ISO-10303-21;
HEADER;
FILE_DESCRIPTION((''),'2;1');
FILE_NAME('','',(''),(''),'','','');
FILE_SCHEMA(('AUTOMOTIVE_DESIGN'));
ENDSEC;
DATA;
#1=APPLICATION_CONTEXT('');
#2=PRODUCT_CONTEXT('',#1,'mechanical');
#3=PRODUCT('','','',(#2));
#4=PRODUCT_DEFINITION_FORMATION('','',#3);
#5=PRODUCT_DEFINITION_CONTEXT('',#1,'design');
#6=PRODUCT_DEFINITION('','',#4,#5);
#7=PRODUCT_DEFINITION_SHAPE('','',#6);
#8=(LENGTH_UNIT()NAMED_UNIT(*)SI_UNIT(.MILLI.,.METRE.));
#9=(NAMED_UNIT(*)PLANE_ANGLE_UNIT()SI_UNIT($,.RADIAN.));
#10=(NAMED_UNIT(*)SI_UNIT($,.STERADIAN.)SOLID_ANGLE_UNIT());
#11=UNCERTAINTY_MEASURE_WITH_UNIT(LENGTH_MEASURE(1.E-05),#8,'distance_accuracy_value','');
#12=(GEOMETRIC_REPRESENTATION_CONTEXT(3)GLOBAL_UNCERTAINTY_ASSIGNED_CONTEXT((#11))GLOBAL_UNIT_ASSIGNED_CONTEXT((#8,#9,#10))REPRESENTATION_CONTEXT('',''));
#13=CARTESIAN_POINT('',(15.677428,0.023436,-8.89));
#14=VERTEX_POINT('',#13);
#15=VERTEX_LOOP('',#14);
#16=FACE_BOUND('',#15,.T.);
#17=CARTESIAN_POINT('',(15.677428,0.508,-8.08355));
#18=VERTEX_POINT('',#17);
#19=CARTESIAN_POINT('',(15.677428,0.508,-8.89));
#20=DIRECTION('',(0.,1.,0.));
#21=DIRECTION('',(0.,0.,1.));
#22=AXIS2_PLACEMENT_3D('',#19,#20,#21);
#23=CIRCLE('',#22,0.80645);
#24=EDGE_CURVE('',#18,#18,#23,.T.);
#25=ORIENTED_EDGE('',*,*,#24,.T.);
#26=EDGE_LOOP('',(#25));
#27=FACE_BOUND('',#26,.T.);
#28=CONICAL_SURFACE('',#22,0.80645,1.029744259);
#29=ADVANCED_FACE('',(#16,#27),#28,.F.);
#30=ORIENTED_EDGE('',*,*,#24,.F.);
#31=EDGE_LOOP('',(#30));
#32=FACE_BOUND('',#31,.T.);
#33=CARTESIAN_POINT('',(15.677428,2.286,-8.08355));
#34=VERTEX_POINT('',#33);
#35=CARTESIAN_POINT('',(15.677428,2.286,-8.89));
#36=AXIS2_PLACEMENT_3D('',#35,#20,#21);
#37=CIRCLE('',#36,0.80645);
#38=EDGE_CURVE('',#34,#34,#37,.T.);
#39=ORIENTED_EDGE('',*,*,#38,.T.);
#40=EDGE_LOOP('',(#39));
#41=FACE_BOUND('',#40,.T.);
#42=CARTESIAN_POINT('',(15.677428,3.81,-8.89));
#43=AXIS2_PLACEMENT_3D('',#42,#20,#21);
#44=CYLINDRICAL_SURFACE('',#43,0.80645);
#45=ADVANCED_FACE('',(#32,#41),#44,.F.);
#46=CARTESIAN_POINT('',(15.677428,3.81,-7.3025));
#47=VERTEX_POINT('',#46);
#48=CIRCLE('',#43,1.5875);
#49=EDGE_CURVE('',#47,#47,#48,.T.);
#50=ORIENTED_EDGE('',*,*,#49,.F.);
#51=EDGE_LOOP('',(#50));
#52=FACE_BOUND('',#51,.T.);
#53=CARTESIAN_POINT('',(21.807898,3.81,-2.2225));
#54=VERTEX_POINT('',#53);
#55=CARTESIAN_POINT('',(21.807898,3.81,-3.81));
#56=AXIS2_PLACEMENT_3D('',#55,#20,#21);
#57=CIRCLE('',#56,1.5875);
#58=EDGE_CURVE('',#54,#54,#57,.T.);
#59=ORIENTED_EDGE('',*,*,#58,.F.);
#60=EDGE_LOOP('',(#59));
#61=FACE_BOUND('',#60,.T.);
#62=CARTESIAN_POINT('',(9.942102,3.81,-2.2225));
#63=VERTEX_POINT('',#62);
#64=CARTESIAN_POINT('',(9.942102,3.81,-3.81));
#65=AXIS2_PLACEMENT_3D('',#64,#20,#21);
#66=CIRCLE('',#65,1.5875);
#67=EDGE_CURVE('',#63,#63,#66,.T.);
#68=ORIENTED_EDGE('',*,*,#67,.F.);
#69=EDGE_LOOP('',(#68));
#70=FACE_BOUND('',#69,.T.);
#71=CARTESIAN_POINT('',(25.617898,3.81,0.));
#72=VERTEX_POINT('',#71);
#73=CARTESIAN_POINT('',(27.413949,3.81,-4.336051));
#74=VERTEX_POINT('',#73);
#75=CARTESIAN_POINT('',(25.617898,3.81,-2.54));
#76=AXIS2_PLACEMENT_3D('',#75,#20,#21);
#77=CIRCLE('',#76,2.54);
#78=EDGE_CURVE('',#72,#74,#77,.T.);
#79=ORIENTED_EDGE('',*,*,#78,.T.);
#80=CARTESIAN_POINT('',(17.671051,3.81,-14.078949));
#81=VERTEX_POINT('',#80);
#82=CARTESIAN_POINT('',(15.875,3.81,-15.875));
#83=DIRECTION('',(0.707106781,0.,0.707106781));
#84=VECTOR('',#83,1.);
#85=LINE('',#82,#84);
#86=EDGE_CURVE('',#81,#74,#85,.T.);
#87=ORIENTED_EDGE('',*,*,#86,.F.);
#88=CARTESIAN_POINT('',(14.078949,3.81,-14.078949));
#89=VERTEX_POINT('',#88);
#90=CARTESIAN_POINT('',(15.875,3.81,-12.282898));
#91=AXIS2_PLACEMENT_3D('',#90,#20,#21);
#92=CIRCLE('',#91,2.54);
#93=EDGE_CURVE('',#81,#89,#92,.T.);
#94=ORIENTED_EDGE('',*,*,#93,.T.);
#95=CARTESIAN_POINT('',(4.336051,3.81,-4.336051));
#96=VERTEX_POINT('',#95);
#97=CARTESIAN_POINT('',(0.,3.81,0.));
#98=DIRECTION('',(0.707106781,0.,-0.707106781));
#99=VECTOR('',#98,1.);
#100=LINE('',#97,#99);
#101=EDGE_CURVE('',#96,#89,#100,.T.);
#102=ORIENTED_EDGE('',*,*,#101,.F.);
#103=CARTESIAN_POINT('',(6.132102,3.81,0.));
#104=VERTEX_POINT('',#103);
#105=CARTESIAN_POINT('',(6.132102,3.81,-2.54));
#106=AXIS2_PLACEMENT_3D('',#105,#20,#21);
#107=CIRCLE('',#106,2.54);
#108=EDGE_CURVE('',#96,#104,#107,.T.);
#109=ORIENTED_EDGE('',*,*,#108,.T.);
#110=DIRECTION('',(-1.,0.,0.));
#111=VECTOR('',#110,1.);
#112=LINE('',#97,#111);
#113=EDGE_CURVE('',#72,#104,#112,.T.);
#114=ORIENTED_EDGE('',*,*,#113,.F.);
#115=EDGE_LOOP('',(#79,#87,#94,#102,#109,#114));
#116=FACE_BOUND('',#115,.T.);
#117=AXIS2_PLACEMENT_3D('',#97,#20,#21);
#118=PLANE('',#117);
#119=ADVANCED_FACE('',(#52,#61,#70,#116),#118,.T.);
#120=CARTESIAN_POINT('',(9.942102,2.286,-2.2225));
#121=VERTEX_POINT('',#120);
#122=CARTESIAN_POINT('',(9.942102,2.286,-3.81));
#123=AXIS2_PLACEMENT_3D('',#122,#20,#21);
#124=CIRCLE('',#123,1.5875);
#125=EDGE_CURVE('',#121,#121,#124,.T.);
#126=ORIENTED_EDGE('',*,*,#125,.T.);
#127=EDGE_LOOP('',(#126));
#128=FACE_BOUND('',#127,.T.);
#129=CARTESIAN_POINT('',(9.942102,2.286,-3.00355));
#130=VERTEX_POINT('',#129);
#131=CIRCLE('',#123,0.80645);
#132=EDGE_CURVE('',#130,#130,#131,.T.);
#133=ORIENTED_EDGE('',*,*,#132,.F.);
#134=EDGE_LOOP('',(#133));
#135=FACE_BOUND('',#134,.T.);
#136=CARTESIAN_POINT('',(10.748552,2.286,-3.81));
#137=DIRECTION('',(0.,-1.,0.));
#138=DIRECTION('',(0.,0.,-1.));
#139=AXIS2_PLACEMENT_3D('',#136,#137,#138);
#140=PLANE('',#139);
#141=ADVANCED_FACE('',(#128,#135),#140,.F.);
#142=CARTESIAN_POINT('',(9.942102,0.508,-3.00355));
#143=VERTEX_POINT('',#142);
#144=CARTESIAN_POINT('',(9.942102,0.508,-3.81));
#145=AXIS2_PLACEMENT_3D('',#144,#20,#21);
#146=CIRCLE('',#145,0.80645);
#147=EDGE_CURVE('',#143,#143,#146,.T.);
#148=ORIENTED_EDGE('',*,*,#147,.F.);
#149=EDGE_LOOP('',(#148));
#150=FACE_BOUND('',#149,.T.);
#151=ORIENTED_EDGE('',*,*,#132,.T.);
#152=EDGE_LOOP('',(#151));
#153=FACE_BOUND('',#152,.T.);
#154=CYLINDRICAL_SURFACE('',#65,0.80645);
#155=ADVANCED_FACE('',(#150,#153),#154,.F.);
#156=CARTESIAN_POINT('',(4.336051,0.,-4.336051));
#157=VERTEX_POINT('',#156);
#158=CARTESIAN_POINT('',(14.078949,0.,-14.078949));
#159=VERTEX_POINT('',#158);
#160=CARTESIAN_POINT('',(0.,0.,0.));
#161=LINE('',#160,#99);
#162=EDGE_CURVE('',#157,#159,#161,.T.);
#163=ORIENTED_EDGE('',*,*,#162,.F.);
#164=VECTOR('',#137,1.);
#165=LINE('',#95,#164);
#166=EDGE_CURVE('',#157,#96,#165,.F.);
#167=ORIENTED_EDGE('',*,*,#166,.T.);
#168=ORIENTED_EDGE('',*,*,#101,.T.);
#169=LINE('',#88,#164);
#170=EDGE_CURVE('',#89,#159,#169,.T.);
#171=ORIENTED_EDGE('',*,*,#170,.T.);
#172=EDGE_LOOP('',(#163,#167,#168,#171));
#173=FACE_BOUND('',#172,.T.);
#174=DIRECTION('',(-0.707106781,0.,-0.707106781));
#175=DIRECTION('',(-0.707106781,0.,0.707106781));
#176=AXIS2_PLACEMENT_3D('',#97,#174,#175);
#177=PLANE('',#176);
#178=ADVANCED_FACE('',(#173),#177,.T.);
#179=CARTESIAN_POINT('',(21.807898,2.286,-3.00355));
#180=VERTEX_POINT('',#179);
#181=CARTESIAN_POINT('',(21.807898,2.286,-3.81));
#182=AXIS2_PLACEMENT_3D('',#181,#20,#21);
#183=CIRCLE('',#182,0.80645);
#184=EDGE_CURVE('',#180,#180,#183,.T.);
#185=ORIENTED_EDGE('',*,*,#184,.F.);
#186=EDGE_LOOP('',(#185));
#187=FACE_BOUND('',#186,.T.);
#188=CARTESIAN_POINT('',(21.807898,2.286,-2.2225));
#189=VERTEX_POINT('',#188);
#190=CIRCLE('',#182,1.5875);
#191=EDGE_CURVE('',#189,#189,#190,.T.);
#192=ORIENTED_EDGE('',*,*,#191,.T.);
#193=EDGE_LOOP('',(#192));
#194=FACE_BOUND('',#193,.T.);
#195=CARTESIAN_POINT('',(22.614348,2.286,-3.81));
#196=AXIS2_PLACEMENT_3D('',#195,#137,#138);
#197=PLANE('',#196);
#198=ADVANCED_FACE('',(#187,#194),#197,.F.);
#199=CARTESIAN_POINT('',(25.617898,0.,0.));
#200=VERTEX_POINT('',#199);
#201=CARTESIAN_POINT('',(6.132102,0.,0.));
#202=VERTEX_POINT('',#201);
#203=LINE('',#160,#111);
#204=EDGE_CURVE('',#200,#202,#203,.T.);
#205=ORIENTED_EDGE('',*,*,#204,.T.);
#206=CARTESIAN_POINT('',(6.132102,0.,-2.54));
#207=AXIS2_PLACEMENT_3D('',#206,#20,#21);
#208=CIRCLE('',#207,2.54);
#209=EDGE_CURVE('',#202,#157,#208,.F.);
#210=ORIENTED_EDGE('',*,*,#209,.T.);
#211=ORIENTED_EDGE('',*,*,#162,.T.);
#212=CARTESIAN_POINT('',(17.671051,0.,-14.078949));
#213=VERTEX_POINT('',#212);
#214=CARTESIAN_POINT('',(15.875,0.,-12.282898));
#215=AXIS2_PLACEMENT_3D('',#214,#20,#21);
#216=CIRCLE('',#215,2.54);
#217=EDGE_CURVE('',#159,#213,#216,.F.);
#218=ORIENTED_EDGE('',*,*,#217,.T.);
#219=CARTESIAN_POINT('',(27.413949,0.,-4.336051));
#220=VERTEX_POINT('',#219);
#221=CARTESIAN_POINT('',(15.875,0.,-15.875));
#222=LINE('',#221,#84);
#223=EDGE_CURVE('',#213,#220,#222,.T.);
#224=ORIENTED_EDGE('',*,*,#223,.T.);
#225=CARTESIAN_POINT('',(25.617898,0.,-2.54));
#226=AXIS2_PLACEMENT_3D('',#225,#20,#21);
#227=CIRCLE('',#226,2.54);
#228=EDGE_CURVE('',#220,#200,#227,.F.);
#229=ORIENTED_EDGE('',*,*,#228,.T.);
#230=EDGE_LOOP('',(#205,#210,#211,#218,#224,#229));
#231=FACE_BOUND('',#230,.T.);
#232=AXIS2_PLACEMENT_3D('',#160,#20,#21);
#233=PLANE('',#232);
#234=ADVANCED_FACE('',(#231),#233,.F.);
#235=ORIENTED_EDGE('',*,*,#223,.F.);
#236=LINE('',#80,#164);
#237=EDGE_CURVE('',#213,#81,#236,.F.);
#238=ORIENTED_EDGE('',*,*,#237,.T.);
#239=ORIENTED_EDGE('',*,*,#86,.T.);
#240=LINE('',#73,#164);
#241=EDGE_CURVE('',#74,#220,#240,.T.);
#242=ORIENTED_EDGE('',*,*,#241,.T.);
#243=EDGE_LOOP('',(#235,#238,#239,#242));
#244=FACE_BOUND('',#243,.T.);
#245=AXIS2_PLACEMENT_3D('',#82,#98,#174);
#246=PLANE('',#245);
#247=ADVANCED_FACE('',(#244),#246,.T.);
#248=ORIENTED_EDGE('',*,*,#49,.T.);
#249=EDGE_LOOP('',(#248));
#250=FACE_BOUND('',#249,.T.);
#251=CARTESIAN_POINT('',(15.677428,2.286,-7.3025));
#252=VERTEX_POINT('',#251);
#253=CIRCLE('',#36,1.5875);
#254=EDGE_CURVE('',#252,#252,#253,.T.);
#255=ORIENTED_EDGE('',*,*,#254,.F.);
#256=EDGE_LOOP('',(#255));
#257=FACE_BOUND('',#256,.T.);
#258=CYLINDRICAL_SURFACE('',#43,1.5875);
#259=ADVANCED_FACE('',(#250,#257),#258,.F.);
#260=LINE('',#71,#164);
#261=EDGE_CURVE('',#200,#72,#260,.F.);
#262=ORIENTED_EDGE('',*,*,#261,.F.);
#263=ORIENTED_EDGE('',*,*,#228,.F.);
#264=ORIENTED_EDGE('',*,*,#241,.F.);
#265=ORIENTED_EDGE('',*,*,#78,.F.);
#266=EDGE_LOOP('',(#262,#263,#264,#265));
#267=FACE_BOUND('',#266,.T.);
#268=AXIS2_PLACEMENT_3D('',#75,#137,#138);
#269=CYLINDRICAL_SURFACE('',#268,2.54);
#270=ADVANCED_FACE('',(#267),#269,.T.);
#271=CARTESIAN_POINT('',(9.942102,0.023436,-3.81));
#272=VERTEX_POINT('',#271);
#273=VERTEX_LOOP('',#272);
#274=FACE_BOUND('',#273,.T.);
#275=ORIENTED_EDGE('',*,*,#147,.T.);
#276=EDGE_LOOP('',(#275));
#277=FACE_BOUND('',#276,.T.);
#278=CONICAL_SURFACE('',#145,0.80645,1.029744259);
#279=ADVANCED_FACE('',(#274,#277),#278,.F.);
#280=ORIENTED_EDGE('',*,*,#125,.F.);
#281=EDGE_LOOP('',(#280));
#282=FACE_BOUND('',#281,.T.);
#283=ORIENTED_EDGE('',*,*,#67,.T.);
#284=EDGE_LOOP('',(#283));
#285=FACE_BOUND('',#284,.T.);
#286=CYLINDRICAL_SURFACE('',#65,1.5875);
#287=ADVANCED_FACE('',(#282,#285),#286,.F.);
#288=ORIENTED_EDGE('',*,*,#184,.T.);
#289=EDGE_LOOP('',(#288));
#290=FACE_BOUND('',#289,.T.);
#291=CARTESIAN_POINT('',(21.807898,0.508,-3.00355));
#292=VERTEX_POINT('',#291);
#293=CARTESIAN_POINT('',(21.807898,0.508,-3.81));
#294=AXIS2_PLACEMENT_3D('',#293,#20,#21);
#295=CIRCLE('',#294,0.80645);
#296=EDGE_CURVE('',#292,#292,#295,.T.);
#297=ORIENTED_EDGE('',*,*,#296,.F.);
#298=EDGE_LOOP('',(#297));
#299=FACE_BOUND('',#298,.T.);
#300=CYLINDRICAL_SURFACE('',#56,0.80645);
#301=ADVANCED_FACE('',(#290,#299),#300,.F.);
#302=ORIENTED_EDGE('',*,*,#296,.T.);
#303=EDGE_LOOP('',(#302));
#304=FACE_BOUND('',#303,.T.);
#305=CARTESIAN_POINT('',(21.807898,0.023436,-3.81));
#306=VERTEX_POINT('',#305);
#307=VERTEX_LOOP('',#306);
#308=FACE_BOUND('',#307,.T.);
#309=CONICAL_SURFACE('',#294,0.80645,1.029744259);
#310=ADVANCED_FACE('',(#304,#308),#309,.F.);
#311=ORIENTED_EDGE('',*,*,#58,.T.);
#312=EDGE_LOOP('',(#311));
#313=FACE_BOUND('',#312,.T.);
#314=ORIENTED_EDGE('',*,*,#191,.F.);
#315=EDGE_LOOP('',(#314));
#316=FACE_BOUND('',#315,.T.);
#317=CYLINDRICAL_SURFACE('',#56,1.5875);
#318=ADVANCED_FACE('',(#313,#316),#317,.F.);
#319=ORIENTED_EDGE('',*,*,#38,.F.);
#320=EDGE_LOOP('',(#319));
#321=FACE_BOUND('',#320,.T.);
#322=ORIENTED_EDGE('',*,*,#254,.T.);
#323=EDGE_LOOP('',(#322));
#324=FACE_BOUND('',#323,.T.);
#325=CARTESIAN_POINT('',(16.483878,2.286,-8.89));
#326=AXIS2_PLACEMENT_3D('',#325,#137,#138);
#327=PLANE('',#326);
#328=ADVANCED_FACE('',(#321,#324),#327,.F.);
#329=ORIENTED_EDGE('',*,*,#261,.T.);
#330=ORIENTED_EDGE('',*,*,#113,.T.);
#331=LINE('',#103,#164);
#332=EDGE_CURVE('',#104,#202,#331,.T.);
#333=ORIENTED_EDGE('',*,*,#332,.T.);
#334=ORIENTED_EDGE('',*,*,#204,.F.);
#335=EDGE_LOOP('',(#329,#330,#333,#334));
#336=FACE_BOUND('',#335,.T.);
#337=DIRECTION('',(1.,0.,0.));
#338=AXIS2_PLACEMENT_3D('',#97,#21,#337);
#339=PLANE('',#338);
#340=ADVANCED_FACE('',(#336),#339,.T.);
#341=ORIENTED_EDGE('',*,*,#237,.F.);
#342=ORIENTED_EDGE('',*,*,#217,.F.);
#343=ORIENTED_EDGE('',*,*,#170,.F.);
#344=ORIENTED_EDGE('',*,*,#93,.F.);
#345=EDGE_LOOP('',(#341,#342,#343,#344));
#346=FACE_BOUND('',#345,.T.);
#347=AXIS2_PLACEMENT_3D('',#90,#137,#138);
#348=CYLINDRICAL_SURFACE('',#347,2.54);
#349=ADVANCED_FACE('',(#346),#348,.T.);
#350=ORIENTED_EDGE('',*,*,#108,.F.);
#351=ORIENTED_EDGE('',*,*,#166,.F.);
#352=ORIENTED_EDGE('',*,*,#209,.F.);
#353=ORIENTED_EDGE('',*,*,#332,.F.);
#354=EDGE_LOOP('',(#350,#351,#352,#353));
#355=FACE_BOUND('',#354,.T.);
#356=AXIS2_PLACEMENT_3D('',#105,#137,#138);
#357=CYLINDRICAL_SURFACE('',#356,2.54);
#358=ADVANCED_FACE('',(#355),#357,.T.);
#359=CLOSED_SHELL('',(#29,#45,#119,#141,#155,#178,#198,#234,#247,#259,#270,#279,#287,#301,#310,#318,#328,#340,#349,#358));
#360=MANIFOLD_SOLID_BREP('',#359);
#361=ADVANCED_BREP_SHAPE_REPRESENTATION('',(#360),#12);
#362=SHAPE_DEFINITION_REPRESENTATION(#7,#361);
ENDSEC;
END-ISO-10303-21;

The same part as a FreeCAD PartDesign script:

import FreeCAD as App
import Part
import Sketcher
Q = App.Units.Quantity


def edges_at(feature, points):
    """Names of the edges that pass closest to the given points."""
    edges = feature.Shape.Edges
    near = lambda p: min(range(len(edges)), key=lambda i: edges[i].distToShape(Part.Vertex(*p))[0])
    return sorted({f"Edge{near(p) + 1}" for p in points})


def add_polygon(sketch, points):
    """Adds a closed chain of lines whose ends are joined by coincident constraints."""
    first, n = sketch.GeometryCount, len(points)
    for a, b in zip(points, points[1:] + points[:1]):
        sketch.addGeometry(Part.LineSegment(App.Vector(*a, 0), App.Vector(*b, 0)), False)
    for i in range(n):
        sketch.addConstraint(Sketcher.Constraint("Coincident", first + i, 2, first + (i + 1) % n, 1))

doc = App.newDocument("Part")
body = doc.addObject("PartDesign::Body", "Body")

# Sketch on XZ plane
sketch1 = body.newObject("Sketcher::SketchObject", "Sketch")
sketch1.AttachmentSupport = (doc.getObject("XZ_Plane"), [""])
sketch1.MapMode = "FlatFace"
add_polygon(sketch1, [(0, 0), (31.75, 0), (15.875, -15.875)])  # lines 0-2
sketch1.addConstraint([
    Sketcher.Constraint("Horizontal", 0),
    Sketcher.Constraint("Coincident", 2, 2, -1, 1),
    Sketcher.Constraint("Perpendicular", 1, 2),
    Sketcher.Constraint("Equal", 1, 2),
    Sketcher.Constraint("DistanceX", 0, 1, 0, 2, Q("1.25 in")),
])
pad1 = body.newObject("PartDesign::Pad", "Pad")
pad1.Profile = sketch1
pad1.Length = Q("0.15 in")
pad1.Reversed = True
doc.recompute()

fillet = body.newObject("PartDesign::Fillet", "Fillet")
fillet.Base = (pad1, edges_at(pad1, [(0, 1.905, 0), (15.875, 1.905, -15.875), (31.75, 1.905, 0)]))
fillet.Radius = Q("0.1 in")

# Sketch on XZ plane
sketch2 = body.newObject("Sketcher::SketchObject", "Sketch001")
sketch2.AttachmentSupport = (doc.getObject("XZ_Plane"), [""])
sketch2.MapMode = "FlatFace"
sketch2.AttachmentOffset = App.Placement(App.Vector(0, 0, -0.15 * 25.4), App.Rotation())
sketch2.addGeometry([
    Part.Circle(App.Vector(9.942102, -3.81, 0), App.Vector(0, 0, 1), 0.80645),
    Part.Circle(App.Vector(15.677428, -8.89, 0), App.Vector(0, 0, 1), 0.80645),
    Part.Circle(App.Vector(21.807898, -3.81, 0), App.Vector(0, 0, 1), 0.80645),
], False)
sketch2.addConstraint([
    Sketcher.Constraint("Equal", 0, 1),
    Sketcher.Constraint("Equal", 1, 2),
    Sketcher.Constraint("Horizontal", 0, 3, 2, 3),
    Sketcher.Constraint("Diameter", 0, Q("0.0635 in")),
    Sketcher.Constraint("DistanceY", 1, 3, 0, 3, Q("0.2 in")),
    Sketcher.Constraint("DistanceY", 0, 3, -1, 1, Q("0.15 in")),
    Sketcher.Constraint("DistanceX", -1, 1, 1, 3, 15.677428),
    Sketcher.Constraint("DistanceX", 1, 3, 2, 3, 6.130469),
    Sketcher.Constraint("DistanceX", -1, 1, 0, 3, 9.942102),
])
doc.recompute()
hole = body.newObject("PartDesign::Hole", "Hole")
hole.Profile = sketch2
hole.ThreadType = "None"
hole.Diameter = Q("0.0635 in")
hole.DepthType = "Dimension"
hole.Depth = Q("0.13 in")
hole.DrillPoint = "Angled"
hole.DrillPointAngle = 118
hole.HoleCutType = "Counterbore"
hole.HoleCutDiameter = Q("0.125 in")
hole.HoleCutDepth = Q("0.06 in")
hole.Reversed = True

doc.recompute()
